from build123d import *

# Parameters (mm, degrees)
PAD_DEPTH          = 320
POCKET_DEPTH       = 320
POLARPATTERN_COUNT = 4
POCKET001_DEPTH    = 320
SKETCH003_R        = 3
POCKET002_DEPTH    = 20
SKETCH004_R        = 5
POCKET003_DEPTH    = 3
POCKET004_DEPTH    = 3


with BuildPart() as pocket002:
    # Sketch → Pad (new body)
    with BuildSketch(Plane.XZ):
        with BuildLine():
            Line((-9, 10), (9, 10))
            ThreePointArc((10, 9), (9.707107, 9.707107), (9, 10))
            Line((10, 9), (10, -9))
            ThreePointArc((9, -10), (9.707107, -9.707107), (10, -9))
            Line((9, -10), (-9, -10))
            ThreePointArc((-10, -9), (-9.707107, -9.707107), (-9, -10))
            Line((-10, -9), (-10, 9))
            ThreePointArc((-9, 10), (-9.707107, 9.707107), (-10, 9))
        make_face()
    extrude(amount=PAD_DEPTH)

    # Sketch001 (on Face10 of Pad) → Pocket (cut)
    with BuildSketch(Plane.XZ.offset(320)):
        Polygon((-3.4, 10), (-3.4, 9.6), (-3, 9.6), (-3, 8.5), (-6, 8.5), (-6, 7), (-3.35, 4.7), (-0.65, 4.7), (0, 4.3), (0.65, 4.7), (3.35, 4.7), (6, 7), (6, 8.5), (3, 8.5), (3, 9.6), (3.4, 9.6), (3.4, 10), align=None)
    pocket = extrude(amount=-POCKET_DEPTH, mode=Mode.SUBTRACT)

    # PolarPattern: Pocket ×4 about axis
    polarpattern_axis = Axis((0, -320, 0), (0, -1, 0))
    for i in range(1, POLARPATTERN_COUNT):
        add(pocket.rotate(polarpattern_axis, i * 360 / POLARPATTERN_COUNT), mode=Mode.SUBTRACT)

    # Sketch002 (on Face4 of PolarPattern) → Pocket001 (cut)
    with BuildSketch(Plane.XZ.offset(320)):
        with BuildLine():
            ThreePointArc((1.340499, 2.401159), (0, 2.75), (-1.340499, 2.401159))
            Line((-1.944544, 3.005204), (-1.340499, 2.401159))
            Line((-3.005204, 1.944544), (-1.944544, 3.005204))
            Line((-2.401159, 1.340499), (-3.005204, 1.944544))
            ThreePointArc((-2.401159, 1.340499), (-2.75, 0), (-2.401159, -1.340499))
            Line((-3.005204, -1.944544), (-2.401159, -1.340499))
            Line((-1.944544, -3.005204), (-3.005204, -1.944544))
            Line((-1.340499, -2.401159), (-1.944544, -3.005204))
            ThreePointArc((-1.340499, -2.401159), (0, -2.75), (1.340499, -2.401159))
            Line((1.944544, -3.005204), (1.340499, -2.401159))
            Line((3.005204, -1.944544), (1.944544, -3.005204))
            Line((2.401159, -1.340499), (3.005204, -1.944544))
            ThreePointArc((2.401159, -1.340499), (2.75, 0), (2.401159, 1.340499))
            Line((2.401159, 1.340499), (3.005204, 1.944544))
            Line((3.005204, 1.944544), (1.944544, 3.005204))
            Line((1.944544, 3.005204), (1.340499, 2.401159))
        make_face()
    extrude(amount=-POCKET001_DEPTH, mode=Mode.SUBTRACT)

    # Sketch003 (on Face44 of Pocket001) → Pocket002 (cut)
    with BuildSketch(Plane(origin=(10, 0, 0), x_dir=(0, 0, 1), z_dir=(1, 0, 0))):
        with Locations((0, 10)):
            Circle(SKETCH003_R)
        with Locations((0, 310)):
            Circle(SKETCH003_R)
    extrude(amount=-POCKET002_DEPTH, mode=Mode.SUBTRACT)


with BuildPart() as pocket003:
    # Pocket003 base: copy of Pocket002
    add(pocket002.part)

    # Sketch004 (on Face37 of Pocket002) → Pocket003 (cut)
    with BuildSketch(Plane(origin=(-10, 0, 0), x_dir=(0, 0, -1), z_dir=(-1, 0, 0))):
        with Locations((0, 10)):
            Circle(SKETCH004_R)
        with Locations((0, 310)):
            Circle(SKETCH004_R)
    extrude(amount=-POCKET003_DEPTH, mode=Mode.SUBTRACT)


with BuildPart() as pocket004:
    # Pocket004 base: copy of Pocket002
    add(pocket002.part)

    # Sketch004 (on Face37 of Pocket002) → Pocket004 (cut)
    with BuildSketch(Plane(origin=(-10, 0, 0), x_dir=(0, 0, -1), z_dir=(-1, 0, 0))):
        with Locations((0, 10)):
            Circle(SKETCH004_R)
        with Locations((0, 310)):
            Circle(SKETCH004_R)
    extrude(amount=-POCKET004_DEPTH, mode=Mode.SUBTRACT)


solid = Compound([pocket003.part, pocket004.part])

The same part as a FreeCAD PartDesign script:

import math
import FreeCAD as App
import Part
import Sketcher
from FreeCAD import Vector

doc = App.newDocument("Part")
params = doc.addObject("Spreadsheet::Sheet", "Params")
for row, (alias, value) in enumerate([
    ("sketch1_radius", "0.999999 mm"),
    ("sketch1_width", "18 mm"),
    ("pad1_length", "320 mm"),
    ("sketch2_width", "3 mm"),
    ("sketch2_width2", "0.4 mm"),
    ("sketch2_width3", "2.7 mm"),
    ("sketch2_width4", "6.8 mm"),
    ("sketch2_height", "1.1 mm"),
    ("pocket1_length", "320 mm"),
    ("sketch3_length", "1.5 mm"),
    ("pocket2_length", "320 mm"),
    ("sketch4_diameter", "6 mm"),
    ("pocket3_length", "20 mm"),
    ("sketch5_diameter", "10 mm"),
    ("pocket4_length", "3 mm"),
    ("sketch6_diameter", "10 mm"),
    ("pocket5_length", "3 mm"),
], start=1):
    params.set(f"A{row}", alias)
    params.set(f"B{row}", "=" + value)
    params.setAlias(f"B{row}", alias)

body = doc.addObject("PartDesign::Body", "Body")

sketch1 = body.newObject("Sketcher::SketchObject", "Sketch")
sketch1.AttachmentSupport = (doc.getObject("XZ_Plane"), [""])
sketch1.MapMode = "FlatFace"
sketch1.addGeometry([
    Part.LineSegment(Vector(9, 10, 0), Vector(-9, 10, 0)),
    Part.ArcOfCircle(Part.Circle(Vector(-9.000001, 9.000001, 0), Vector(0, 0, 1), 0.999999), math.radians(89.999957), math.radians(180.000043)),
    Part.LineSegment(Vector(-10, 9, 0), Vector(-10, -9, 0)),
    Part.ArcOfCircle(Part.Circle(Vector(-9.000001, -9.000001, 0), Vector(0, 0, 1), 0.999999), math.radians(179.999957), math.radians(270.000043)),
    Part.LineSegment(Vector(-9, -10, 0), Vector(9, -10, 0)),
    Part.ArcOfCircle(Part.Circle(Vector(9.000001, -9.000001, 0), Vector(0, 0, 1), 0.999999), math.radians(-90.000043), math.radians(0.000043)),
    Part.LineSegment(Vector(10, -9, 0), Vector(10, 9, 0)),
    Part.ArcOfCircle(Part.Circle(Vector(9.000001, 9.000001, 0), Vector(0, 0, 1), 0.999999), math.radians(-0.000043), math.radians(90.000043)),
], False)
sketch1.addConstraint([
    Sketcher.Constraint("Tangent", 0, 2, 1, 1),
    Sketcher.Constraint("Tangent", 1, 2, 2, 1),
    Sketcher.Constraint("Tangent", 2, 2, 3, 1),
    Sketcher.Constraint("Tangent", 3, 2, 4, 1),
    Sketcher.Constraint("Tangent", 4, 2, 5, 1),
    Sketcher.Constraint("Tangent", 5, 2, 6, 1),
    Sketcher.Constraint("Tangent", 6, 2, 7, 1),
    Sketcher.Constraint("Tangent", 7, 2, 0, 1),
    Sketcher.Constraint("Horizontal", 0),
    Sketcher.Constraint("Vertical", 2),
    Sketcher.Constraint("Horizontal", 4),
    Sketcher.Constraint("Vertical", 6),
    Sketcher.Constraint("Equal", 1, 3),
    Sketcher.Constraint("Equal", 3, 5),
    Sketcher.Constraint("Equal", 5, 7),
    Sketcher.Constraint("Symmetric", 1, 3, 5, 3, -1, 1),
    Sketcher.Constraint("Equal", 4, 2),
    Sketcher.Constraint("Radius", 1, 0.999999),
    Sketcher.Constraint("DistanceX", 0, 2, 0, 1, 18.0),
])
sketch1.setExpression("Constraints[17]", "Params.sketch1_radius")
sketch1.setExpression("Constraints[18]", "Params.sketch1_width")
pad1 = body.newObject("PartDesign::Pad", "Pad")
pad1.Profile = sketch1
pad1.setExpression("Length", "Params.pad1_length")

sketch2 = body.newObject("Sketcher::SketchObject", "Sketch001")
sketch2.AttachmentSupport = (doc.getObject("XZ_Plane"), [""])
sketch2.MapMode = "FlatFace"
sketch2.AttachmentOffset = App.Placement(Vector(0, 0, 320), App.Rotation())
sketch2.addGeometry([
    Part.LineSegment(Vector(-3.4, 10, 0), Vector(-3.4, 9.6, 0)),
    Part.LineSegment(Vector(-3.4, 9.6, 0), Vector(-3, 9.6, 0)),
    Part.LineSegment(Vector(-3, 9.6, 0), Vector(-3, 8.5, 0)),
    Part.LineSegment(Vector(-3, 8.5, 0), Vector(-6, 8.5, 0)),
    Part.LineSegment(Vector(-6, 8.5, 0), Vector(-6, 7, 0)),
    Part.LineSegment(Vector(-6, 7, 0), Vector(-3.35, 4.7, 0)),
    Part.LineSegment(Vector(-3.35, 4.7, 0), Vector(-0.65, 4.7, 0)),
    Part.LineSegment(Vector(-0.65, 4.7, 0), Vector(0, 4.3, 0)),
    Part.LineSegment(Vector(0, 4.3, 0), Vector(0.65, 4.7, 0)),
    Part.LineSegment(Vector(0.65, 4.7, 0), Vector(3.35, 4.7, 0)),
    Part.LineSegment(Vector(3.35, 4.7, 0), Vector(6, 7, 0)),
    Part.LineSegment(Vector(6, 7, 0), Vector(6, 8.5, 0)),
    Part.LineSegment(Vector(6, 8.5, 0), Vector(3, 8.5, 0)),
    Part.LineSegment(Vector(3, 8.5, 0), Vector(3, 9.6, 0)),
    Part.LineSegment(Vector(3, 9.6, 0), Vector(3.4, 9.6, 0)),
    Part.LineSegment(Vector(3.4, 9.6, 0), Vector(3.4, 10, 0)),
    Part.LineSegment(Vector(3.4, 10, 0), Vector(-3.4, 10, 0)),
], False)
sketch2.addConstraint([
    Sketcher.Constraint("Coincident", 0, 2, 1, 1),
    Sketcher.Constraint("Coincident", 1, 2, 2, 1),
    Sketcher.Constraint("Coincident", 2, 2, 3, 1),
    Sketcher.Constraint("Coincident", 3, 2, 4, 1),
    Sketcher.Constraint("Coincident", 4, 2, 5, 1),
    Sketcher.Constraint("Coincident", 5, 2, 6, 1),
    Sketcher.Constraint("Coincident", 6, 2, 7, 1),
    Sketcher.Constraint("Coincident", 7, 2, 8, 1),
    Sketcher.Constraint("Coincident", 8, 2, 9, 1),
    Sketcher.Constraint("Coincident", 9, 2, 10, 1),
    Sketcher.Constraint("Coincident", 10, 2, 11, 1),
    Sketcher.Constraint("Coincident", 11, 2, 12, 1),
    Sketcher.Constraint("Coincident", 12, 2, 13, 1),
    Sketcher.Constraint("Coincident", 13, 2, 14, 1),
    Sketcher.Constraint("Coincident", 14, 2, 15, 1),
    Sketcher.Constraint("Coincident", 15, 2, 16, 1),
    Sketcher.Constraint("Coincident", 16, 2, 0, 1),
    Sketcher.Constraint("Vertical", 0),
    Sketcher.Constraint("Horizontal", 1),
    Sketcher.Constraint("Vertical", 2),
    Sketcher.Constraint("Horizontal", 3),
    Sketcher.Constraint("Vertical", 4),
    Sketcher.Constraint("Horizontal", 6),
    Sketcher.Constraint("Horizontal", 9),
    Sketcher.Constraint("Vertical", 11),
    Sketcher.Constraint("Horizontal", 12),
    Sketcher.Constraint("Vertical", 13),
    Sketcher.Constraint("Horizontal", 14),
    Sketcher.Constraint("Vertical", 15),
    Sketcher.Constraint("Horizontal", 16),
    Sketcher.Constraint("Symmetric", 6, 2, 8, 2, -2),
    Sketcher.Constraint("Symmetric", 4, 2, 10, 2, -2),
    Sketcher.Constraint("Symmetric", 2, 2, 12, 2, -2),
    Sketcher.Constraint("Symmetric", 0, 2, 14, 2, -2),
    Sketcher.Constraint("PointOnObject", 7, 2, -2),
    Sketcher.Constraint("Equal", 6, 9),
    Sketcher.Constraint("Equal", 14, 0),
    Sketcher.Constraint("DistanceX", 3, 2, 3, 1, 3.0),
    Sketcher.Constraint("DistanceX", 1, 1, 1, 2, 0.4),
    Sketcher.Constraint("DistanceX", 6, 1, 6, 2, 2.7),
    Sketcher.Constraint("DistanceX", 16, 2, 16, 1, 6.8),
    Sketcher.Constraint("DistanceY", 2, 2, 2, 1, 1.1),
    Sketcher.Constraint("DistanceY", 4, 2, 4, 1, 1.5),
    Sketcher.Constraint("DistanceY", -1, 1, 4, 2, 7.0),
    Sketcher.Constraint("DistanceX", 5, 2, 8, 2, 4.0),
    Sketcher.Constraint("DistanceY", -1, 1, 5, 2, 4.7),
    Sketcher.Constraint("DistanceY", -1, 1, 7, 2, 4.3),
])
sketch2.setExpression("Constraints[37]", "Params.sketch2_width")
sketch2.setExpression("Constraints[38]", "Params.sketch2_width2")
sketch2.setExpression("Constraints[39]", "Params.sketch2_width3")
sketch2.setExpression("Constraints[40]", "Params.sketch2_width4")
sketch2.setExpression("Constraints[41]", "Params.sketch2_height")
pocket1 = body.newObject("PartDesign::Pocket", "Pocket")
pocket1.Profile = sketch2
pocket1.setExpression("Length", "Params.pocket1_length")
doc.recompute()

polarpattern = body.newObject("PartDesign::PolarPattern", "PolarPattern")
polarpattern.Originals = [pocket1]
polarpattern.Axis = (doc.getObject("Y_Axis"), [""])
polarpattern.Angle = 360
polarpattern.Occurrences = 4
body.Tip = polarpattern

sketch3 = body.newObject("Sketcher::SketchObject", "Sketch002")
sketch3.AttachmentSupport = (doc.getObject("XZ_Plane"), [""])
sketch3.MapMode = "FlatFace"
sketch3.AttachmentOffset = App.Placement(Vector(0, 0, 320), App.Rotation())
sketch3.addGeometry([
    Part.ArcOfCircle(Part.Circle(Vector(0, -0.000003, 0), Vector(0, 0, 1), 2.750003), math.radians(60.826646), math.radians(119.173354)),
    Part.LineSegment(Vector(-1.340499, 2.401159, 0), Vector(-1.944544, 3.005204, 0)),
    Part.LineSegment(Vector(-1.944544, 3.005204, 0), Vector(-3.005204, 1.944544, 0)),
    Part.LineSegment(Vector(-3.005204, 1.944544, 0), Vector(-2.401159, 1.340499, 0)),
    Part.ArcOfCircle(Part.Circle(Vector(0.000003, 0, 0), Vector(0, 0, 1), 2.750003), math.radians(150.826646), math.radians(209.173354)),
    Part.LineSegment(Vector(-2.401159, -1.340499, 0), Vector(-3.005204, -1.944544, 0)),
    Part.LineSegment(Vector(-3.005204, -1.944544, 0), Vector(-1.944544, -3.005204, 0)),
    Part.LineSegment(Vector(-1.944544, -3.005204, 0), Vector(-1.340499, -2.401159, 0)),
    Part.ArcOfCircle(Part.Circle(Vector(0, 0.000003, 0), Vector(0, 0, 1), 2.750003), math.radians(-119.173354), math.radians(-60.826646)),
    Part.LineSegment(Vector(1.340499, -2.401159, 0), Vector(1.944544, -3.005204, 0)),
    Part.LineSegment(Vector(1.944544, -3.005204, 0), Vector(3.005204, -1.944544, 0)),
    Part.LineSegment(Vector(3.005204, -1.944544, 0), Vector(2.401159, -1.340499, 0)),
    Part.ArcOfCircle(Part.Circle(Vector(-0.000003, 0, 0), Vector(0, 0, 1), 2.750003), math.radians(-29.173354), math.radians(29.173354)),
    Part.LineSegment(Vector(2.401159, 1.340499, 0), Vector(3.005204, 1.944544, 0)),
    Part.LineSegment(Vector(3.005204, 1.944544, 0), Vector(1.944544, 3.005204, 0)),
    Part.LineSegment(Vector(1.944544, 3.005204, 0), Vector(1.340499, 2.401159, 0)),
], False)
sketch3.addConstraint([
    Sketcher.Constraint("Coincident", 0, 2, 1, 1),
    Sketcher.Constraint("Coincident", 1, 2, 2, 1),
    Sketcher.Constraint("Coincident", 2, 2, 3, 1),
    Sketcher.Constraint("Coincident", 3, 2, 4, 1),
    Sketcher.Constraint("Coincident", 4, 2, 5, 1),
    Sketcher.Constraint("Coincident", 5, 2, 6, 1),
    Sketcher.Constraint("Coincident", 6, 2, 7, 1),
    Sketcher.Constraint("Coincident", 7, 2, 8, 1),
    Sketcher.Constraint("Coincident", 8, 2, 9, 1),
    Sketcher.Constraint("Coincident", 9, 2, 10, 1),
    Sketcher.Constraint("Coincident", 10, 2, 11, 1),
    Sketcher.Constraint("Coincident", 11, 2, 12, 1),
    Sketcher.Constraint("Coincident", 12, 2, 13, 1),
    Sketcher.Constraint("Coincident", 13, 2, 14, 1),
    Sketcher.Constraint("Coincident", 14, 2, 15, 1),
    Sketcher.Constraint("Coincident", 15, 2, 0, 1),
    Sketcher.Constraint("Coincident", 0, 3, -1, 1),
    Sketcher.Constraint("Coincident", 4, 3, -1, 1),
    Sketcher.Constraint("Coincident", 8, 3, -1, 1),
    Sketcher.Constraint("Coincident", 12, 3, -1, 1),
    Sketcher.Constraint("Equal", 0, 4),
    Sketcher.Constraint("Equal", 4, 8),
    Sketcher.Constraint("Equal", 8, 12),
    Sketcher.Constraint("Symmetric", 1, 2, 9, 2, -1, 1),
    Sketcher.Constraint("Symmetric", 2, 2, 10, 2, -1, 1),
    Sketcher.Constraint("Symmetric", 5, 2, 13, 2, -1, 1),
    Sketcher.Constraint("Symmetric", 6, 2, 14, 2, -1, 1),
    Sketcher.Constraint("Symmetric", 6, 2, 9, 2, -2),
    Sketcher.Constraint("Symmetric", 5, 2, 10, 2, -2),
    Sketcher.Constraint("Perpendicular", 1, 2),
    Sketcher.Constraint("Perpendicular", 2, 3),
    Sketcher.Constraint("Perpendicular", 3, 5),
    Sketcher.Constraint("Perpendicular", 5, 6),
    Sketcher.Constraint("Perpendicular", 6, 7),
    Sketcher.Constraint("Perpendicular", 7, 9),
    Sketcher.Constraint("Perpendicular", 10, 11),
    Sketcher.Constraint("Perpendicular", 11, 13),
    Sketcher.Constraint("Perpendicular", 14, 15),
    Sketcher.Constraint("Equal", 1, 3),
    Sketcher.Constraint("Distance", 2, 1.5),
    Sketcher.Constraint("Radius", 0, 2.750003),
    Sketcher.Constraint("DistanceY", 8, 3, 1, 2, 3.005201),
])
sketch3.setExpression("Constraints[39]", "Params.sketch3_length")
pocket2 = body.newObject("PartDesign::Pocket", "Pocket001")
pocket2.Profile = sketch3
pocket2.setExpression("Length", "Params.pocket2_length")

sketch4 = body.newObject("Sketcher::SketchObject", "Sketch003")
sketch4.AttachmentSupport = (doc.getObject("YZ_Plane"), [""])
sketch4.MapMode = "FlatFace"
sketch4.AttachmentOffset = App.Placement(Vector(0, 0, 10), App.Rotation())
sketch4.addGeometry([
    Part.Circle(Vector(-10, 0, 0), Vector(0, 0, 1), 3),
    Part.Circle(Vector(-310, 0, 0), Vector(0, 0, 1), 3),
], False)
sketch4.addConstraint([
    Sketcher.Constraint("Equal", 0, 1),
    Sketcher.Constraint("PointOnObject", 0, 3, -1),
    Sketcher.Constraint("PointOnObject", 1, 3, -1),
    Sketcher.Constraint("Diameter", 0, 6.0),
    Sketcher.Constraint("DistanceX", 0, 3, -1, 1, 10.0),
    Sketcher.Constraint("DistanceX", 1, 3, -1, 1, 310.0),
])
sketch4.setExpression("Constraints[3]", "Params.sketch4_diameter")
pocket3 = body.newObject("PartDesign::Pocket", "Pocket002")
pocket3.Profile = sketch4
pocket3.setExpression("Length", "Params.pocket3_length")
body2 = doc.addObject("PartDesign::Body", "Body001")
doc.recompute()

body2.BaseFeature = body
doc.recompute()

sketch5 = body2.newObject("Sketcher::SketchObject", "Sketch004")
sketch5.AttachmentSupport = (doc.getObject("YZ_Plane001"), [""])
sketch5.MapMode = "FlatFace"
sketch5.AttachmentOffset = App.Placement(Vector(0, 0, -10), App.Rotation())
sketch5.addGeometry([
    Part.Circle(Vector(-10, 0, 0), Vector(0, 0, 1), 5),
    Part.Circle(Vector(-310, 0, 0), Vector(0, 0, 1), 5),
], False)
sketch5.addConstraint([
    Sketcher.Constraint("Equal", 0, 1),
    Sketcher.Constraint("PointOnObject", 0, 3, -1),
    Sketcher.Constraint("PointOnObject", 1, 3, -1),
    Sketcher.Constraint("Diameter", 0, 10.0),
    Sketcher.Constraint("DistanceX", 0, 3, -1, 1, 10.0),
    Sketcher.Constraint("DistanceX", 1, 3, -1, 1, 310.0),
])
sketch5.setExpression("Constraints[3]", "Params.sketch5_diameter")
pocket4 = body2.newObject("PartDesign::Pocket", "Pocket003")
pocket4.Profile = sketch5
pocket4.setExpression("Length", "Params.pocket4_length")
pocket4.Reversed = True

sketch6 = body.newObject("Sketcher::SketchObject", "Sketch005")
sketch6.AttachmentSupport = (doc.getObject("YZ_Plane"), [""])
sketch6.MapMode = "FlatFace"
sketch6.AttachmentOffset = App.Placement(Vector(0, 0, -10), App.Rotation())
sketch6.addGeometry([
    Part.Circle(Vector(-10, 0, 0), Vector(0, 0, 1), 5),
    Part.Circle(Vector(-310, 0, 0), Vector(0, 0, 1), 5),
], False)
sketch6.addConstraint([
    Sketcher.Constraint("Equal", 0, 1),
    Sketcher.Constraint("PointOnObject", 0, 3, -1),
    Sketcher.Constraint("PointOnObject", 1, 3, -1),
    Sketcher.Constraint("Diameter", 0, 10.0),
    Sketcher.Constraint("DistanceX", 0, 3, -1, 1, 10.0),
    Sketcher.Constraint("DistanceX", 1, 3, -1, 1, 310.0),
])
sketch6.setExpression("Constraints[3]", "Params.sketch6_diameter")
pocket5 = body.newObject("PartDesign::Pocket", "Pocket004")
pocket5.Profile = sketch6
pocket5.setExpression("Length", "Params.pocket5_length")
pocket5.Reversed = True

doc.recompute()
